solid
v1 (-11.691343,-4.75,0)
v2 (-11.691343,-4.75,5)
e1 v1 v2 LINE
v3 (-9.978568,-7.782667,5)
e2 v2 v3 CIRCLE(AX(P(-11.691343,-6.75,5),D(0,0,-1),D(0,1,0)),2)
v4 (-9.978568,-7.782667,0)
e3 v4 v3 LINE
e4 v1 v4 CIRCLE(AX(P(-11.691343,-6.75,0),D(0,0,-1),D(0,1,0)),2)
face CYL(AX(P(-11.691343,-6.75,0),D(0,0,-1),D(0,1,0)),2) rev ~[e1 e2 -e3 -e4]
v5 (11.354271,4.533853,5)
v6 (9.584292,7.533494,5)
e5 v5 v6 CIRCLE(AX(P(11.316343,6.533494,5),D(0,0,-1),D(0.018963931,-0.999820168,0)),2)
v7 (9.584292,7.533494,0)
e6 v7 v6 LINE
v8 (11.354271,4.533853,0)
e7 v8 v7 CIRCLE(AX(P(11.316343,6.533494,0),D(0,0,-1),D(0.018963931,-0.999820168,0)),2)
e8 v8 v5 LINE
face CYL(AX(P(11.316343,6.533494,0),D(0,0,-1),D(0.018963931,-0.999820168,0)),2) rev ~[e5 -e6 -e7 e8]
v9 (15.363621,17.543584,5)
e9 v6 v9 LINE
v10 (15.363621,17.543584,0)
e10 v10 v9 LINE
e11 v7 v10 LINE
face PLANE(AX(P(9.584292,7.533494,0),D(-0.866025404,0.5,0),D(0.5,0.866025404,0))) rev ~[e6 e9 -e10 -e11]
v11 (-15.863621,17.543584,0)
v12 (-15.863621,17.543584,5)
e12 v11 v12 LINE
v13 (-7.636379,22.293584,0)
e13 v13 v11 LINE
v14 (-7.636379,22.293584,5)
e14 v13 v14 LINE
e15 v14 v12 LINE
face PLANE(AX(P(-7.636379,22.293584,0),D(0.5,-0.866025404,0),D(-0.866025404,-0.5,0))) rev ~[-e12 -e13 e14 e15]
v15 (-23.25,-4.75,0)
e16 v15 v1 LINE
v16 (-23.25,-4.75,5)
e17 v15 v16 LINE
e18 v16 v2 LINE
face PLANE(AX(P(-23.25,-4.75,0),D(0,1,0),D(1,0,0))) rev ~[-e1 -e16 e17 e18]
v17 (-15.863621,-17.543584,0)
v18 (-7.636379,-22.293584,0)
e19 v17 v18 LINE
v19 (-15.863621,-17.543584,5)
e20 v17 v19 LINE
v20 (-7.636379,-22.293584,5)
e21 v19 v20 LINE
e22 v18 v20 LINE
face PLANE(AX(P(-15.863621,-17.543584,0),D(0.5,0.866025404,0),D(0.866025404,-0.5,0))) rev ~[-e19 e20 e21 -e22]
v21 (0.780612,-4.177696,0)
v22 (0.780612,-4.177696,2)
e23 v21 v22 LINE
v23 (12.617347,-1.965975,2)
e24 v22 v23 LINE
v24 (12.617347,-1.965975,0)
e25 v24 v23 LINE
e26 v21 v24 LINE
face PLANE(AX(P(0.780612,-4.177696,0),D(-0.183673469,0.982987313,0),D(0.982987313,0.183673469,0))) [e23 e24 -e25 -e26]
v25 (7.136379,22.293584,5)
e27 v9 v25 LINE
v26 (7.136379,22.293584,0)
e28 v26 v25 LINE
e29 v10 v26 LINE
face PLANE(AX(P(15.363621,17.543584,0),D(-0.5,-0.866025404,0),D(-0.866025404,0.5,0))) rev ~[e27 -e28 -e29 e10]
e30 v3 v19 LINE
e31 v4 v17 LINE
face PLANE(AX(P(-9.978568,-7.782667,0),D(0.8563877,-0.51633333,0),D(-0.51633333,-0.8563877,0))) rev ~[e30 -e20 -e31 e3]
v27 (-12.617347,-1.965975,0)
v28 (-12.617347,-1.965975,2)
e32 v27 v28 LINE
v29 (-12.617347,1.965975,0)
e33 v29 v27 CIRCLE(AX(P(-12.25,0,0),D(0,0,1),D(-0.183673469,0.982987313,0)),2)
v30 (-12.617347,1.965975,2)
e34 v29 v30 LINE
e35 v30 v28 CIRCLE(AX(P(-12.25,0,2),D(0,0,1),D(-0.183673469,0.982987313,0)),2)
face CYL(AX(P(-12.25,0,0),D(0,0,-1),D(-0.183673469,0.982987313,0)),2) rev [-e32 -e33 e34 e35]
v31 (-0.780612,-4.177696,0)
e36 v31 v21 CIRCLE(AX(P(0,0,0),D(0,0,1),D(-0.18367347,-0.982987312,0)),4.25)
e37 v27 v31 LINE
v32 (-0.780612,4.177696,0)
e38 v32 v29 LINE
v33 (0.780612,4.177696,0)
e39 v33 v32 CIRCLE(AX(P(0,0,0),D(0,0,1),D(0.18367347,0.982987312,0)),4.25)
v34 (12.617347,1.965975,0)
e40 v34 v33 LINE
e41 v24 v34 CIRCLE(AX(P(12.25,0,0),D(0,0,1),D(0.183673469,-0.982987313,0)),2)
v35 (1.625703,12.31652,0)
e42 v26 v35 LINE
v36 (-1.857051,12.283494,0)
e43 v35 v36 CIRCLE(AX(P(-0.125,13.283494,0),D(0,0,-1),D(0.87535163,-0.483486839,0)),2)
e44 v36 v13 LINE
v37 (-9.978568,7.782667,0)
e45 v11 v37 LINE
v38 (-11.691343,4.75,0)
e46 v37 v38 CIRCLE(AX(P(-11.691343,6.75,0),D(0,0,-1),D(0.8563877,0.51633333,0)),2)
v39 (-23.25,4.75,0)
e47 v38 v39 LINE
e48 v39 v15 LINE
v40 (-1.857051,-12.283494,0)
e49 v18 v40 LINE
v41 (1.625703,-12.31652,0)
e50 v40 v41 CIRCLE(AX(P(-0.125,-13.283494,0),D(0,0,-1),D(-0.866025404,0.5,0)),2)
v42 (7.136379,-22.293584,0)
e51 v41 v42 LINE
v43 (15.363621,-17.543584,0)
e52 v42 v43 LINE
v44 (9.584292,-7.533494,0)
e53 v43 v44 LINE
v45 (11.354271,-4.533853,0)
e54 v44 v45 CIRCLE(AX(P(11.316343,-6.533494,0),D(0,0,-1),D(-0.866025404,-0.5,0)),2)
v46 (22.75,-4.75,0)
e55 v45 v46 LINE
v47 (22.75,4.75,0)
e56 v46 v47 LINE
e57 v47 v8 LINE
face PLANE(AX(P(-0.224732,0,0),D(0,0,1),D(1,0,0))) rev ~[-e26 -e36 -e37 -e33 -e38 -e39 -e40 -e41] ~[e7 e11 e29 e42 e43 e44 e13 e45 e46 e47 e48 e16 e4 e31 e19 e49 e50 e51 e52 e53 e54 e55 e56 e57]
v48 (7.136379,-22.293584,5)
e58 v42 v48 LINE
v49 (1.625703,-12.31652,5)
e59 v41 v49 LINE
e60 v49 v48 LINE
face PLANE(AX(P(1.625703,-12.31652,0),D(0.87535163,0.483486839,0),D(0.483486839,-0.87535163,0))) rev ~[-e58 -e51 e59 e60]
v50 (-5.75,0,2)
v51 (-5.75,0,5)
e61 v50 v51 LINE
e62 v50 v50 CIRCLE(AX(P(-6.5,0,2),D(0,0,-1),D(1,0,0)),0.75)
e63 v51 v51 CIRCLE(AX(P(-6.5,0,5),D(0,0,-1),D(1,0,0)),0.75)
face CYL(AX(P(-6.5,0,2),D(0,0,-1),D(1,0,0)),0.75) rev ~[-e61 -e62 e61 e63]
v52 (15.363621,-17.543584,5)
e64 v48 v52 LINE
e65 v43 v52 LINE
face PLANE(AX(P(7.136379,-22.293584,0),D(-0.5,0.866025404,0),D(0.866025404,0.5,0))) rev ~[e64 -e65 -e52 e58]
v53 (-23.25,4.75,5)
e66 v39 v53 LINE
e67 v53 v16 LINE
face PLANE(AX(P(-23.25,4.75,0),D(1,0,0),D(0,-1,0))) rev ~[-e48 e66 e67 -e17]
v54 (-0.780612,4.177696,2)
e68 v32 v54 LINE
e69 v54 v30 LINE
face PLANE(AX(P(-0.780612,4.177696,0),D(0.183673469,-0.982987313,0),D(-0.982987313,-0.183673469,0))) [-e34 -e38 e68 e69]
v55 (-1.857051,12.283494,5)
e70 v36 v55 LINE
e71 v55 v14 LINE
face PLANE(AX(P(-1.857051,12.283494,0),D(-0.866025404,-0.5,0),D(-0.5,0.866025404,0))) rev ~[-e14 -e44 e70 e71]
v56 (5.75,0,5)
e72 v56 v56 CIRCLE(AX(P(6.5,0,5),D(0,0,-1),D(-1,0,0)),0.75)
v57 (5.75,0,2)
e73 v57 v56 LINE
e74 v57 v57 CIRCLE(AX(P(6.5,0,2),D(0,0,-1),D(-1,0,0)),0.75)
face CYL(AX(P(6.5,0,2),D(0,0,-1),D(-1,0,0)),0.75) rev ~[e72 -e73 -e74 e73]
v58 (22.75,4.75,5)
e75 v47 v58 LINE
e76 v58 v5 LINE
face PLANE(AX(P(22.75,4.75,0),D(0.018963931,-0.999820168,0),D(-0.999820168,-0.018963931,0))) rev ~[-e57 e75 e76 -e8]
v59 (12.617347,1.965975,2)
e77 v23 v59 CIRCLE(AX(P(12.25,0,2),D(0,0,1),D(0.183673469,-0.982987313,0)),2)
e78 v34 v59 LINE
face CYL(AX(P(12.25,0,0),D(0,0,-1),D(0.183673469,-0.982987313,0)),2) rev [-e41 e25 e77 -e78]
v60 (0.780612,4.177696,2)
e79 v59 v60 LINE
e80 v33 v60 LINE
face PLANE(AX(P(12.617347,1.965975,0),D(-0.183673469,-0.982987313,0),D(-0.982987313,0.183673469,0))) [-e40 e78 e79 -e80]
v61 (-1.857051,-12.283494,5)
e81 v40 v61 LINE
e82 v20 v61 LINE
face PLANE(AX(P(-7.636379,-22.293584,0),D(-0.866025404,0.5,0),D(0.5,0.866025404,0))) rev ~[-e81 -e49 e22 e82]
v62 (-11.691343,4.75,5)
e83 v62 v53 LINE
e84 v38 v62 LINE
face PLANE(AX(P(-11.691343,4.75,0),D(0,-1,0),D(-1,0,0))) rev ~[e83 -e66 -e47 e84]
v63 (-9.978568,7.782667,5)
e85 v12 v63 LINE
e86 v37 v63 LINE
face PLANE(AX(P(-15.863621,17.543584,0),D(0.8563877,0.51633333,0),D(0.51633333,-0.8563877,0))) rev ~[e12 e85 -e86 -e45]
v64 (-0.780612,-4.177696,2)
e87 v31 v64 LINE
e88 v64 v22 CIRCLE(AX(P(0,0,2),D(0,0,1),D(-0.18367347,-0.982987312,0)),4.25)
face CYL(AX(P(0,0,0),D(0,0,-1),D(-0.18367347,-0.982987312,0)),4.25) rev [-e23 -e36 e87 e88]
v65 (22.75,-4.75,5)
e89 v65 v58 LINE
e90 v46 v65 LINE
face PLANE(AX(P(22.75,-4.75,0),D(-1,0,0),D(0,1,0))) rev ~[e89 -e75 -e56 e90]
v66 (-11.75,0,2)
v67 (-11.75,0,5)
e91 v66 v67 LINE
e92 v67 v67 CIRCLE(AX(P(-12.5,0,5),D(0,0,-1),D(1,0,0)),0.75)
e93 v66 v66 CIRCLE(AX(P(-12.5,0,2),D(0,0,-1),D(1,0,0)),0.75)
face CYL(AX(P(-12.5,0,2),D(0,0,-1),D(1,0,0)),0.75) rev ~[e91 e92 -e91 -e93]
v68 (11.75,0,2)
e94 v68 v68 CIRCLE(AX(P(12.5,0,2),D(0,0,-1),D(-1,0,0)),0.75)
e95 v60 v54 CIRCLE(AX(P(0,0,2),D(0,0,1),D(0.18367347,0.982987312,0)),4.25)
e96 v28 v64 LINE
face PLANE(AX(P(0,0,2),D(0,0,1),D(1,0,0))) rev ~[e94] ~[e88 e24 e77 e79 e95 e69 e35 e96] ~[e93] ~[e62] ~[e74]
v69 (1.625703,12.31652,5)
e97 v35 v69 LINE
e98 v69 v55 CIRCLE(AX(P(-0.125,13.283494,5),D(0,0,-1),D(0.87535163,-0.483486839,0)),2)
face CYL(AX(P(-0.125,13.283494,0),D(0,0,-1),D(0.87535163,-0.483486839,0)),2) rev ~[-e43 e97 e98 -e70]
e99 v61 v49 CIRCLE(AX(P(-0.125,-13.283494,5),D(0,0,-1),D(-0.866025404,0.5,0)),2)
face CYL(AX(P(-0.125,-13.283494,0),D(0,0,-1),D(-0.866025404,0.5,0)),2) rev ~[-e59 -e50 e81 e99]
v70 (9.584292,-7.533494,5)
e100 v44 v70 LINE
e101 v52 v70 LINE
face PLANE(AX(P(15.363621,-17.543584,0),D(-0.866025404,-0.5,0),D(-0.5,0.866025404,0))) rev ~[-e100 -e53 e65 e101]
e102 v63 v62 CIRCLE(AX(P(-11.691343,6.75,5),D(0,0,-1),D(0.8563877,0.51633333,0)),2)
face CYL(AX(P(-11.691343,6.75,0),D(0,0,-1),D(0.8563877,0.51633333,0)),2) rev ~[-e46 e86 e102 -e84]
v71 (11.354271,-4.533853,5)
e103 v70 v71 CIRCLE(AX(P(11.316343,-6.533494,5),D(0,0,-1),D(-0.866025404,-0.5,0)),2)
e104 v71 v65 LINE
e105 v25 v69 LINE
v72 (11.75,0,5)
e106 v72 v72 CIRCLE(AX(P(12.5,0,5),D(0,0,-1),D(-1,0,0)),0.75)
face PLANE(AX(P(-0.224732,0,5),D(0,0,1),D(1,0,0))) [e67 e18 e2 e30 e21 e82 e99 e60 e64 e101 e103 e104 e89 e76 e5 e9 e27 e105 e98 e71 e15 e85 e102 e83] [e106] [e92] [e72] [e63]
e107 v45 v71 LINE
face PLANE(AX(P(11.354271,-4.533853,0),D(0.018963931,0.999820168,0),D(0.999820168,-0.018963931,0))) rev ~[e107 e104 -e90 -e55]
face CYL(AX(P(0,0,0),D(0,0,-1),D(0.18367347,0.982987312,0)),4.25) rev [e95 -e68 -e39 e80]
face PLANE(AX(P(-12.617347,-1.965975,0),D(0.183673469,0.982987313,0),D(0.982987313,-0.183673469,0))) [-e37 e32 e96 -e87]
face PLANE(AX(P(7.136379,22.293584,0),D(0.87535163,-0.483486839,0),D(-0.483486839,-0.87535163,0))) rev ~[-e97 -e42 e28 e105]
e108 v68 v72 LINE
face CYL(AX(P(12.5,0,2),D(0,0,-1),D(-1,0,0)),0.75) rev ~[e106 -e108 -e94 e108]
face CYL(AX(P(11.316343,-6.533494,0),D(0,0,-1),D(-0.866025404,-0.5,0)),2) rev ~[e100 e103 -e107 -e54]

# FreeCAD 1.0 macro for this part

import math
import FreeCAD as App
import Part
import Sketcher
from FreeCAD import Vector
Q = App.Units.Quantity

doc = App.newDocument("Part")
body = doc.addObject("PartDesign::Body", "Body")

sketch1 = body.newObject("Sketcher::SketchObject", "Sketch")
sketch1.AttachmentSupport = (doc.getObject("XY_Plane"), [""])
sketch1.MapMode = "FlatFace"
sketch1.addGeometry([
    Part.LineSegment(Vector(-23.2, 4.8, 0), Vector(-23.2, -4.8, 0)),
    Part.LineSegment(Vector(-23.2, -4.8, 0), Vector(-11.7, -4.8, 0)),
    Part.ArcOfCircle(Part.Circle(Vector(-11.7, -6.8, 0), Vector(0, 0, 1), 2), math.radians(-31), math.radians(90)),
    Part.LineSegment(Vector(-10, -7.8, 0), Vector(-15.9, -17.5, 0)),
    Part.LineSegment(Vector(-15.9, -17.5, 0), Vector(-7.6, -22.3, 0)),
    Part.LineSegment(Vector(-7.6, -22.3, 0), Vector(-1.9, -12.3, 0)),
    Part.ArcOfCircle(Part.Circle(Vector(-0.1, -13.3, 0), Vector(0, 0, 1), 2), math.radians(29), math.radians(150)),
    Part.LineSegment(Vector(1.6, -12.3, 0), Vector(7.1, -22.3, 0)),
    Part.LineSegment(Vector(7.1, -22.3, 0), Vector(15.4, -17.5, 0)),
    Part.LineSegment(Vector(15.4, -17.5, 0), Vector(9.6, -7.5, 0)),
    Part.ArcOfCircle(Part.Circle(Vector(11.3, -6.5, 0), Vector(0, 0, 1), 2), math.radians(89), math.radians(210)),
    Part.LineSegment(Vector(11.4, -4.5, 0), Vector(22.8, -4.8, 0)),
    Part.LineSegment(Vector(22.8, -4.8, 0), Vector(22.8, 4.8, 0)),
    Part.LineSegment(Vector(22.8, 4.8, 0), Vector(11.4, 4.5, 0)),
    Part.ArcOfCircle(Part.Circle(Vector(11.3, 6.5, 0), Vector(0, 0, 1), 2), math.radians(150), math.radians(271)),
    Part.LineSegment(Vector(9.6, 7.5, 0), Vector(15.4, 17.5, 0)),
    Part.LineSegment(Vector(15.4, 17.5, 0), Vector(7.1, 22.3, 0)),
    Part.LineSegment(Vector(7.1, 22.3, 0), Vector(1.6, 12.3, 0)),
    Part.ArcOfCircle(Part.Circle(Vector(-0.1, 13.3, 0), Vector(0, 0, 1), 2), math.radians(-150), math.radians(-29)),
    Part.LineSegment(Vector(-1.9, 12.3, 0), Vector(-7.6, 22.3, 0)),
    Part.LineSegment(Vector(-7.6, 22.3, 0), Vector(-15.9, 17.5, 0)),
    Part.LineSegment(Vector(-15.9, 17.5, 0), Vector(-10, 7.8, 0)),
    Part.ArcOfCircle(Part.Circle(Vector(-11.7, 6.8, 0), Vector(0, 0, 1), 2), math.radians(-90), math.radians(31)),
    Part.LineSegment(Vector(-11.7, 4.8, 0), Vector(-23.2, 4.8, 0)),
], False)
sketch1.addConstraint([
    Sketcher.Constraint("Coincident", 0, 2, 1, 1),
    Sketcher.Constraint("Tangent", 1, 2, 2, 2),
    Sketcher.Constraint("Tangent", 2, 1, 3, 1),
    Sketcher.Constraint("Coincident", 3, 2, 4, 1),
    Sketcher.Constraint("Coincident", 4, 2, 5, 1),
    Sketcher.Constraint("Tangent", 5, 2, 6, 2),
    Sketcher.Constraint("Tangent", 6, 1, 7, 1),
    Sketcher.Constraint("Coincident", 7, 2, 8, 1),
    Sketcher.Constraint("Coincident", 8, 2, 9, 1),
    Sketcher.Constraint("Tangent", 9, 2, 10, 2),
    Sketcher.Constraint("Tangent", 10, 1, 11, 1),
    Sketcher.Constraint("Coincident", 11, 2, 12, 1),
    Sketcher.Constraint("Coincident", 12, 2, 13, 1),
    Sketcher.Constraint("Tangent", 13, 2, 14, 2),
    Sketcher.Constraint("Tangent", 14, 1, 15, 1),
    Sketcher.Constraint("Coincident", 15, 2, 16, 1),
    Sketcher.Constraint("Coincident", 16, 2, 17, 1),
    Sketcher.Constraint("Tangent", 17, 2, 18, 2),
    Sketcher.Constraint("Tangent", 18, 1, 19, 1),
    Sketcher.Constraint("Coincident", 19, 2, 20, 1),
    Sketcher.Constraint("Coincident", 20, 2, 21, 1),
    Sketcher.Constraint("Tangent", 21, 2, 22, 2),
    Sketcher.Constraint("Tangent", 22, 1, 23, 1),
    Sketcher.Constraint("Coincident", 23, 2, 0, 1),
    Sketcher.Constraint("Vertical", 0),
    Sketcher.Constraint("Horizontal", 1),
    Sketcher.Constraint("Vertical", 12),
    Sketcher.Constraint("Horizontal", 23),
    Sketcher.Constraint("Equal", 2, 6),
    Sketcher.Constraint("Equal", 6, 10),
    Sketcher.Constraint("Equal", 10, 14),
    Sketcher.Constraint("Equal", 14, 18),
    Sketcher.Constraint("Equal", 18, 22),
    Sketcher.Constraint("Symmetric", 10, 3, 14, 3, -1),
    Sketcher.Constraint("Symmetric", 6, 3, 18, 3, -1),
    Sketcher.Constraint("Symmetric", 2, 3, 22, 3, -1),
    Sketcher.Constraint("Symmetric", 8, 2, 15, 2, -1),
    Sketcher.Constraint("Symmetric", 7, 2, 16, 2, -1),
    Sketcher.Constraint("Symmetric", 4, 2, 19, 2, -1),
    Sketcher.Constraint("Symmetric", 3, 2, 20, 2, -1),
    Sketcher.Constraint("Perpendicular", 4, 5),
    Sketcher.Constraint("Perpendicular", 8, 9),
    Sketcher.Constraint("Parallel", 5, 15),
    Sketcher.Constraint("Horizontal", 4, 2, 7, 2),
    Sketcher.Constraint("Horizontal", 3, 2, 8, 2),
    Sketcher.Constraint("Horizontal", 1, 2, 11, 2),
    Sketcher.Constraint("Horizontal", 12, 2, 22, 1),
    Sketcher.Constraint("Equal", 3, 7),
    Sketcher.Constraint("Equal", 5, 9),
    Sketcher.Constraint("Equal", 7, 11),
    Sketcher.Constraint("Radius", 2, 2.0),
    Sketcher.Constraint("Angle", 4, Q("-30 deg")),
    Sketcher.Constraint("DistanceY", 0, 2, 0, 1, 9.5),
    Sketcher.Constraint("Distance", 4, 9.5),
    Sketcher.Constraint("DistanceX", 0, 2, -1, 1, 23.25),
    Sketcher.Constraint("DistanceX", -1, 1, 11, 2, 22.75),
    Sketcher.Constraint("DistanceX", 6, 3, -1, 1, 0.125),
    Sketcher.Constraint("Distance", 3, 11.397779),
    Sketcher.Constraint("DistanceX", 1, 1, 1, 2, 11.558657),
])
pad1 = body.newObject("PartDesign::Pad", "Pad")
pad1.Profile = sketch1
pad1.Length = 5

sketch2 = body.newObject("Sketcher::SketchObject", "Sketch001")
sketch2.AttachmentSupport = (doc.getObject("XY_Plane"), [""])
sketch2.MapMode = "FlatFace"
sketch2.addGeometry([
    Part.LineSegment(Vector(-12.6, 2, 0), Vector(-0.8, 4.2, 0)),
    Part.ArcOfCircle(Part.Circle(Vector(0, 0, 0), Vector(0, 0, 1), 4.2), math.radians(79), math.radians(101)),
    Part.LineSegment(Vector(0.8, 4.2, 0), Vector(12.6, 2, 0)),
    Part.ArcOfCircle(Part.Circle(Vector(12.2, 0, 0), Vector(0, 0, 1), 2), math.radians(-79), math.radians(79)),
    Part.LineSegment(Vector(12.6, -2, 0), Vector(0.8, -4.2, 0)),
    Part.ArcOfCircle(Part.Circle(Vector(0, 0, 0), Vector(0, 0, 1), 4.2), math.radians(-101), math.radians(-79)),
    Part.LineSegment(Vector(-0.8, -4.2, 0), Vector(-12.6, -2, 0)),
    Part.ArcOfCircle(Part.Circle(Vector(-12.2, 0, 0), Vector(0, 0, 1), 2), math.radians(101), math.radians(259)),
], False)
sketch2.addConstraint([
    Sketcher.Constraint("Tangent", 0, 2, 1, 2),
    Sketcher.Constraint("Tangent", 1, 1, 2, 1),
    Sketcher.Constraint("Tangent", 2, 2, 3, 2),
    Sketcher.Constraint("Tangent", 3, 1, 4, 1),
    Sketcher.Constraint("Tangent", 4, 2, 5, 2),
    Sketcher.Constraint("Tangent", 5, 1, 6, 1),
    Sketcher.Constraint("Tangent", 6, 2, 7, 2),
    Sketcher.Constraint("Tangent", 7, 1, 0, 1),
    Sketcher.Constraint("Coincident", 1, 3, -1, 1),
    Sketcher.Constraint("Coincident", 5, 3, -1, 1),
    Sketcher.Constraint("Equal", 1, 5),
    Sketcher.Constraint("Equal", 3, 7),
    Sketcher.Constraint("Symmetric", 3, 3, 7, 3, -1, 1),
    Sketcher.Constraint("PointOnObject", 3, 3, -1),
    Sketcher.Constraint("Radius", 3, 2.0),
    Sketcher.Constraint("Radius", 1, 4.25),
    Sketcher.Constraint("DistanceX", 7, 3, 3, 3, 24.5),
])
pocket1 = body.newObject("PartDesign::Pocket", "Pocket")
pocket1.Profile = sketch2
pocket1.Length = 2
pocket1.Reversed = True

sketch3 = body.newObject("Sketcher::SketchObject", "Sketch002")
sketch3.AttachmentSupport = (doc.getObject("XY_Plane"), [""])
sketch3.MapMode = "FlatFace"
sketch3.AttachmentOffset = App.Placement(Vector(0, 0, 2), App.Rotation())
sketch3.addGeometry([
    Part.Circle(Vector(6.5, 0, 0), Vector(0, 0, 1), 0.8),
    Part.Circle(Vector(12.5, 0, 0), Vector(0, 0, 1), 0.8),
    Part.Circle(Vector(-6.5, 0, 0), Vector(0, 0, 1), 0.8),
    Part.Circle(Vector(-12.5, 0, 0), Vector(0, 0, 1), 0.8),
], False)
sketch3.addConstraint([
    Sketcher.Constraint("Equal", 0, 1),
    Sketcher.Constraint("Equal", 1, 2),
    Sketcher.Constraint("Equal", 2, 3),
    Sketcher.Constraint("Symmetric", 0, 3, 2, 3, -1, 1),
    Sketcher.Constraint("Symmetric", 1, 3, 3, 3, -1, 1),
    Sketcher.Constraint("PointOnObject", 0, 3, -1),
    Sketcher.Constraint("PointOnObject", 1, 3, -1),
    Sketcher.Constraint("Diameter", 0, 1.5),
    Sketcher.Constraint("DistanceX", 0, 3, 1, 3, 6.0),
    Sketcher.Constraint("DistanceX", 2, 3, 0, 3, 13.0),
])
pocket2 = body.newObject("PartDesign::Pocket", "Pocket001")
pocket2.Profile = sketch3
pocket2.Type = "ThroughAll"
pocket2.Reversed = True

doc.recompute()
